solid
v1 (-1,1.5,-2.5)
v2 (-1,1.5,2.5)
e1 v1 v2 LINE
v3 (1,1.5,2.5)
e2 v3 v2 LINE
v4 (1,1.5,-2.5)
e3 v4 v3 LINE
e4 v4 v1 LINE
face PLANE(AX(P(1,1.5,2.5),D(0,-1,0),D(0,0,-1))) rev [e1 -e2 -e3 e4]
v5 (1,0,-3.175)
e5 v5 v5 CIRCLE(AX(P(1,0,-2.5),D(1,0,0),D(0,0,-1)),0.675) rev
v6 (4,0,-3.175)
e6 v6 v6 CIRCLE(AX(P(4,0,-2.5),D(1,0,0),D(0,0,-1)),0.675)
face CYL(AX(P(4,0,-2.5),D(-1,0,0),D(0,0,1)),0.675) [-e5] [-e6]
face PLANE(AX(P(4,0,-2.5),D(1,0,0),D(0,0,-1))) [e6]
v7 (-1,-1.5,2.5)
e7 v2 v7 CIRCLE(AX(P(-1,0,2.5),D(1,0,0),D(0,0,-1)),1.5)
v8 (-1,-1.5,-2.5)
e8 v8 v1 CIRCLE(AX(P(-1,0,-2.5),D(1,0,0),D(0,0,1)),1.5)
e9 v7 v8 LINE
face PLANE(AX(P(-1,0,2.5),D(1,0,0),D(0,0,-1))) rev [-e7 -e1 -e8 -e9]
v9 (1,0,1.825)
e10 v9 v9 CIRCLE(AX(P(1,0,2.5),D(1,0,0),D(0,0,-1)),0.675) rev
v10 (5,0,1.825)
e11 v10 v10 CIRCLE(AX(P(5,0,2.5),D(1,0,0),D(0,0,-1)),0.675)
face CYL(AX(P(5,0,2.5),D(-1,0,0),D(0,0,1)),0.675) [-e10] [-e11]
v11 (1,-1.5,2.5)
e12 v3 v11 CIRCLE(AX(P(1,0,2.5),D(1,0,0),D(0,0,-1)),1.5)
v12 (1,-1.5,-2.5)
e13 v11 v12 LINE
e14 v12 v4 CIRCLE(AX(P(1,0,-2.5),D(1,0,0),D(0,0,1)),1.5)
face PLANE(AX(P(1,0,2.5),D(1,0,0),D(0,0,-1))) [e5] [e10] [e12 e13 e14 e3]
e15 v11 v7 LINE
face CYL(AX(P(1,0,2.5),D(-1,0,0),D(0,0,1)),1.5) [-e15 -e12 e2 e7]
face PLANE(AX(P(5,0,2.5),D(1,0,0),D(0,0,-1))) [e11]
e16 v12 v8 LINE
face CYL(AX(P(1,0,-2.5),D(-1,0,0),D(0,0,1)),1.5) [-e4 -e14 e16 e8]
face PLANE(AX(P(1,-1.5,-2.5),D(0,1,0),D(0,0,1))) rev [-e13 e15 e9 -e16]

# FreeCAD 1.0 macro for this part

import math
import FreeCAD as App
import Part
import Sketcher

doc = App.newDocument("Part")
params = doc.addObject("Spreadsheet::Sheet", "Params")
for row, (alias, value) in enumerate([
    ("sketch1_radius", "1.5 mm"),
    ("sketch1_height", "5 mm"),
    ("pad1_length", "2 mm"),
    ("sketch2_diameter", "1.35 mm"),
    ("pad2_length", "5 mm"),
    ("sketch3_diameter", "1.35 mm"),
    ("pad3_length", "4 mm"),
], start=1):
    params.set(f"A{row}", alias)
    params.set(f"B{row}", "=" + value)
    params.setAlias(f"B{row}", alias)

body = doc.addObject("PartDesign::Body", "Body")

sketch1 = body.newObject("Sketcher::SketchObject", "Sketch")
sketch1.AttachmentSupport = (doc.getObject("YZ_Plane"), [""])
sketch1.MapMode = "FlatFace"
sketch1.addGeometry(Part.LineSegment(App.Vector(1.5, -2.5, 0), App.Vector(1.5, 2.5, 0)), False)
sketch1.addGeometry(Part.ArcOfCircle(Part.Circle(App.Vector(0, 2.5, 0), App.Vector(0, 0, 1), 1.5), math.radians(0), math.radians(180)), False)
sketch1.addGeometry(Part.LineSegment(App.Vector(-1.5, 2.5, 0), App.Vector(-1.5, -2.5, 0)), False)
sketch1.addGeometry(Part.ArcOfCircle(Part.Circle(App.Vector(0, -2.5, 0), App.Vector(0, 0, 1), 1.5), math.radians(180), math.radians(360)), False)
sketch1.addConstraint(Sketcher.Constraint("Tangent", 0, 2, 1, 1))
sketch1.addConstraint(Sketcher.Constraint("Tangent", 1, 2, 2, 1))
sketch1.addConstraint(Sketcher.Constraint("Tangent", 2, 2, 3, 1))
sketch1.addConstraint(Sketcher.Constraint("Tangent", 3, 2, 0, 1))
sketch1.addConstraint(Sketcher.Constraint("Vertical", 0))
sketch1.addConstraint(Sketcher.Constraint("Vertical", 2))
sketch1.addConstraint(Sketcher.Constraint("Symmetric", 1, 3, 3, 3, -1, 1))
sketch1.addConstraint(Sketcher.Constraint("Radius", 1, 1.5))
sketch1.addConstraint(Sketcher.Constraint("DistanceY", 0, 1, 0, 2, 5.0))
sketch1.setExpression("Constraints[7]", "Params.sketch1_radius")
sketch1.setExpression("Constraints[8]", "Params.sketch1_height")
pad1 = body.newObject("PartDesign::Pad", "Pad")
pad1.Profile = sketch1
pad1.setExpression("Length", "Params.pad1_length")
pad1.Midplane = True

sketch2 = body.newObject("Sketcher::SketchObject", "Sketch001")
sketch2.AttachmentSupport = (doc.getObject("YZ_Plane"), [""])
sketch2.MapMode = "FlatFace"
sketch2.addGeometry(Part.Circle(App.Vector(0, 2.5, 0), App.Vector(0, 0, 1), 0.7), False)
sketch2.addConstraint(Sketcher.Constraint("PointOnObject", 0, 3, -2))
sketch2.addConstraint(Sketcher.Constraint("Diameter", 0, 1.35))
sketch2.addConstraint(Sketcher.Constraint("DistanceY", -1, 1, 0, 3, 2.5))
sketch2.setExpression("Constraints[1]", "Params.sketch2_diameter")
pad2 = body.newObject("PartDesign::Pad", "Pad001")
pad2.Profile = sketch2
pad2.setExpression("Length", "Params.pad2_length")

sketch3 = body.newObject("Sketcher::SketchObject", "Sketch002")
sketch3.AttachmentSupport = (doc.getObject("YZ_Plane"), [""])
sketch3.MapMode = "FlatFace"
sketch3.addGeometry(Part.Circle(App.Vector(0, -2.5, 0), App.Vector(0, 0, 1), 0.7), False)
sketch3.addConstraint(Sketcher.Constraint("PointOnObject", 0, 3, -2))
sketch3.addConstraint(Sketcher.Constraint("Diameter", 0, 1.35))
sketch3.addConstraint(Sketcher.Constraint("DistanceY", 0, 3, -1, 1, 2.5))
sketch3.setExpression("Constraints[1]", "Params.sketch3_diameter")
pad3 = body.newObject("PartDesign::Pad", "Pad002")
pad3.Profile = sketch3
pad3.setExpression("Length", "Params.pad3_length")

doc.recompute()
